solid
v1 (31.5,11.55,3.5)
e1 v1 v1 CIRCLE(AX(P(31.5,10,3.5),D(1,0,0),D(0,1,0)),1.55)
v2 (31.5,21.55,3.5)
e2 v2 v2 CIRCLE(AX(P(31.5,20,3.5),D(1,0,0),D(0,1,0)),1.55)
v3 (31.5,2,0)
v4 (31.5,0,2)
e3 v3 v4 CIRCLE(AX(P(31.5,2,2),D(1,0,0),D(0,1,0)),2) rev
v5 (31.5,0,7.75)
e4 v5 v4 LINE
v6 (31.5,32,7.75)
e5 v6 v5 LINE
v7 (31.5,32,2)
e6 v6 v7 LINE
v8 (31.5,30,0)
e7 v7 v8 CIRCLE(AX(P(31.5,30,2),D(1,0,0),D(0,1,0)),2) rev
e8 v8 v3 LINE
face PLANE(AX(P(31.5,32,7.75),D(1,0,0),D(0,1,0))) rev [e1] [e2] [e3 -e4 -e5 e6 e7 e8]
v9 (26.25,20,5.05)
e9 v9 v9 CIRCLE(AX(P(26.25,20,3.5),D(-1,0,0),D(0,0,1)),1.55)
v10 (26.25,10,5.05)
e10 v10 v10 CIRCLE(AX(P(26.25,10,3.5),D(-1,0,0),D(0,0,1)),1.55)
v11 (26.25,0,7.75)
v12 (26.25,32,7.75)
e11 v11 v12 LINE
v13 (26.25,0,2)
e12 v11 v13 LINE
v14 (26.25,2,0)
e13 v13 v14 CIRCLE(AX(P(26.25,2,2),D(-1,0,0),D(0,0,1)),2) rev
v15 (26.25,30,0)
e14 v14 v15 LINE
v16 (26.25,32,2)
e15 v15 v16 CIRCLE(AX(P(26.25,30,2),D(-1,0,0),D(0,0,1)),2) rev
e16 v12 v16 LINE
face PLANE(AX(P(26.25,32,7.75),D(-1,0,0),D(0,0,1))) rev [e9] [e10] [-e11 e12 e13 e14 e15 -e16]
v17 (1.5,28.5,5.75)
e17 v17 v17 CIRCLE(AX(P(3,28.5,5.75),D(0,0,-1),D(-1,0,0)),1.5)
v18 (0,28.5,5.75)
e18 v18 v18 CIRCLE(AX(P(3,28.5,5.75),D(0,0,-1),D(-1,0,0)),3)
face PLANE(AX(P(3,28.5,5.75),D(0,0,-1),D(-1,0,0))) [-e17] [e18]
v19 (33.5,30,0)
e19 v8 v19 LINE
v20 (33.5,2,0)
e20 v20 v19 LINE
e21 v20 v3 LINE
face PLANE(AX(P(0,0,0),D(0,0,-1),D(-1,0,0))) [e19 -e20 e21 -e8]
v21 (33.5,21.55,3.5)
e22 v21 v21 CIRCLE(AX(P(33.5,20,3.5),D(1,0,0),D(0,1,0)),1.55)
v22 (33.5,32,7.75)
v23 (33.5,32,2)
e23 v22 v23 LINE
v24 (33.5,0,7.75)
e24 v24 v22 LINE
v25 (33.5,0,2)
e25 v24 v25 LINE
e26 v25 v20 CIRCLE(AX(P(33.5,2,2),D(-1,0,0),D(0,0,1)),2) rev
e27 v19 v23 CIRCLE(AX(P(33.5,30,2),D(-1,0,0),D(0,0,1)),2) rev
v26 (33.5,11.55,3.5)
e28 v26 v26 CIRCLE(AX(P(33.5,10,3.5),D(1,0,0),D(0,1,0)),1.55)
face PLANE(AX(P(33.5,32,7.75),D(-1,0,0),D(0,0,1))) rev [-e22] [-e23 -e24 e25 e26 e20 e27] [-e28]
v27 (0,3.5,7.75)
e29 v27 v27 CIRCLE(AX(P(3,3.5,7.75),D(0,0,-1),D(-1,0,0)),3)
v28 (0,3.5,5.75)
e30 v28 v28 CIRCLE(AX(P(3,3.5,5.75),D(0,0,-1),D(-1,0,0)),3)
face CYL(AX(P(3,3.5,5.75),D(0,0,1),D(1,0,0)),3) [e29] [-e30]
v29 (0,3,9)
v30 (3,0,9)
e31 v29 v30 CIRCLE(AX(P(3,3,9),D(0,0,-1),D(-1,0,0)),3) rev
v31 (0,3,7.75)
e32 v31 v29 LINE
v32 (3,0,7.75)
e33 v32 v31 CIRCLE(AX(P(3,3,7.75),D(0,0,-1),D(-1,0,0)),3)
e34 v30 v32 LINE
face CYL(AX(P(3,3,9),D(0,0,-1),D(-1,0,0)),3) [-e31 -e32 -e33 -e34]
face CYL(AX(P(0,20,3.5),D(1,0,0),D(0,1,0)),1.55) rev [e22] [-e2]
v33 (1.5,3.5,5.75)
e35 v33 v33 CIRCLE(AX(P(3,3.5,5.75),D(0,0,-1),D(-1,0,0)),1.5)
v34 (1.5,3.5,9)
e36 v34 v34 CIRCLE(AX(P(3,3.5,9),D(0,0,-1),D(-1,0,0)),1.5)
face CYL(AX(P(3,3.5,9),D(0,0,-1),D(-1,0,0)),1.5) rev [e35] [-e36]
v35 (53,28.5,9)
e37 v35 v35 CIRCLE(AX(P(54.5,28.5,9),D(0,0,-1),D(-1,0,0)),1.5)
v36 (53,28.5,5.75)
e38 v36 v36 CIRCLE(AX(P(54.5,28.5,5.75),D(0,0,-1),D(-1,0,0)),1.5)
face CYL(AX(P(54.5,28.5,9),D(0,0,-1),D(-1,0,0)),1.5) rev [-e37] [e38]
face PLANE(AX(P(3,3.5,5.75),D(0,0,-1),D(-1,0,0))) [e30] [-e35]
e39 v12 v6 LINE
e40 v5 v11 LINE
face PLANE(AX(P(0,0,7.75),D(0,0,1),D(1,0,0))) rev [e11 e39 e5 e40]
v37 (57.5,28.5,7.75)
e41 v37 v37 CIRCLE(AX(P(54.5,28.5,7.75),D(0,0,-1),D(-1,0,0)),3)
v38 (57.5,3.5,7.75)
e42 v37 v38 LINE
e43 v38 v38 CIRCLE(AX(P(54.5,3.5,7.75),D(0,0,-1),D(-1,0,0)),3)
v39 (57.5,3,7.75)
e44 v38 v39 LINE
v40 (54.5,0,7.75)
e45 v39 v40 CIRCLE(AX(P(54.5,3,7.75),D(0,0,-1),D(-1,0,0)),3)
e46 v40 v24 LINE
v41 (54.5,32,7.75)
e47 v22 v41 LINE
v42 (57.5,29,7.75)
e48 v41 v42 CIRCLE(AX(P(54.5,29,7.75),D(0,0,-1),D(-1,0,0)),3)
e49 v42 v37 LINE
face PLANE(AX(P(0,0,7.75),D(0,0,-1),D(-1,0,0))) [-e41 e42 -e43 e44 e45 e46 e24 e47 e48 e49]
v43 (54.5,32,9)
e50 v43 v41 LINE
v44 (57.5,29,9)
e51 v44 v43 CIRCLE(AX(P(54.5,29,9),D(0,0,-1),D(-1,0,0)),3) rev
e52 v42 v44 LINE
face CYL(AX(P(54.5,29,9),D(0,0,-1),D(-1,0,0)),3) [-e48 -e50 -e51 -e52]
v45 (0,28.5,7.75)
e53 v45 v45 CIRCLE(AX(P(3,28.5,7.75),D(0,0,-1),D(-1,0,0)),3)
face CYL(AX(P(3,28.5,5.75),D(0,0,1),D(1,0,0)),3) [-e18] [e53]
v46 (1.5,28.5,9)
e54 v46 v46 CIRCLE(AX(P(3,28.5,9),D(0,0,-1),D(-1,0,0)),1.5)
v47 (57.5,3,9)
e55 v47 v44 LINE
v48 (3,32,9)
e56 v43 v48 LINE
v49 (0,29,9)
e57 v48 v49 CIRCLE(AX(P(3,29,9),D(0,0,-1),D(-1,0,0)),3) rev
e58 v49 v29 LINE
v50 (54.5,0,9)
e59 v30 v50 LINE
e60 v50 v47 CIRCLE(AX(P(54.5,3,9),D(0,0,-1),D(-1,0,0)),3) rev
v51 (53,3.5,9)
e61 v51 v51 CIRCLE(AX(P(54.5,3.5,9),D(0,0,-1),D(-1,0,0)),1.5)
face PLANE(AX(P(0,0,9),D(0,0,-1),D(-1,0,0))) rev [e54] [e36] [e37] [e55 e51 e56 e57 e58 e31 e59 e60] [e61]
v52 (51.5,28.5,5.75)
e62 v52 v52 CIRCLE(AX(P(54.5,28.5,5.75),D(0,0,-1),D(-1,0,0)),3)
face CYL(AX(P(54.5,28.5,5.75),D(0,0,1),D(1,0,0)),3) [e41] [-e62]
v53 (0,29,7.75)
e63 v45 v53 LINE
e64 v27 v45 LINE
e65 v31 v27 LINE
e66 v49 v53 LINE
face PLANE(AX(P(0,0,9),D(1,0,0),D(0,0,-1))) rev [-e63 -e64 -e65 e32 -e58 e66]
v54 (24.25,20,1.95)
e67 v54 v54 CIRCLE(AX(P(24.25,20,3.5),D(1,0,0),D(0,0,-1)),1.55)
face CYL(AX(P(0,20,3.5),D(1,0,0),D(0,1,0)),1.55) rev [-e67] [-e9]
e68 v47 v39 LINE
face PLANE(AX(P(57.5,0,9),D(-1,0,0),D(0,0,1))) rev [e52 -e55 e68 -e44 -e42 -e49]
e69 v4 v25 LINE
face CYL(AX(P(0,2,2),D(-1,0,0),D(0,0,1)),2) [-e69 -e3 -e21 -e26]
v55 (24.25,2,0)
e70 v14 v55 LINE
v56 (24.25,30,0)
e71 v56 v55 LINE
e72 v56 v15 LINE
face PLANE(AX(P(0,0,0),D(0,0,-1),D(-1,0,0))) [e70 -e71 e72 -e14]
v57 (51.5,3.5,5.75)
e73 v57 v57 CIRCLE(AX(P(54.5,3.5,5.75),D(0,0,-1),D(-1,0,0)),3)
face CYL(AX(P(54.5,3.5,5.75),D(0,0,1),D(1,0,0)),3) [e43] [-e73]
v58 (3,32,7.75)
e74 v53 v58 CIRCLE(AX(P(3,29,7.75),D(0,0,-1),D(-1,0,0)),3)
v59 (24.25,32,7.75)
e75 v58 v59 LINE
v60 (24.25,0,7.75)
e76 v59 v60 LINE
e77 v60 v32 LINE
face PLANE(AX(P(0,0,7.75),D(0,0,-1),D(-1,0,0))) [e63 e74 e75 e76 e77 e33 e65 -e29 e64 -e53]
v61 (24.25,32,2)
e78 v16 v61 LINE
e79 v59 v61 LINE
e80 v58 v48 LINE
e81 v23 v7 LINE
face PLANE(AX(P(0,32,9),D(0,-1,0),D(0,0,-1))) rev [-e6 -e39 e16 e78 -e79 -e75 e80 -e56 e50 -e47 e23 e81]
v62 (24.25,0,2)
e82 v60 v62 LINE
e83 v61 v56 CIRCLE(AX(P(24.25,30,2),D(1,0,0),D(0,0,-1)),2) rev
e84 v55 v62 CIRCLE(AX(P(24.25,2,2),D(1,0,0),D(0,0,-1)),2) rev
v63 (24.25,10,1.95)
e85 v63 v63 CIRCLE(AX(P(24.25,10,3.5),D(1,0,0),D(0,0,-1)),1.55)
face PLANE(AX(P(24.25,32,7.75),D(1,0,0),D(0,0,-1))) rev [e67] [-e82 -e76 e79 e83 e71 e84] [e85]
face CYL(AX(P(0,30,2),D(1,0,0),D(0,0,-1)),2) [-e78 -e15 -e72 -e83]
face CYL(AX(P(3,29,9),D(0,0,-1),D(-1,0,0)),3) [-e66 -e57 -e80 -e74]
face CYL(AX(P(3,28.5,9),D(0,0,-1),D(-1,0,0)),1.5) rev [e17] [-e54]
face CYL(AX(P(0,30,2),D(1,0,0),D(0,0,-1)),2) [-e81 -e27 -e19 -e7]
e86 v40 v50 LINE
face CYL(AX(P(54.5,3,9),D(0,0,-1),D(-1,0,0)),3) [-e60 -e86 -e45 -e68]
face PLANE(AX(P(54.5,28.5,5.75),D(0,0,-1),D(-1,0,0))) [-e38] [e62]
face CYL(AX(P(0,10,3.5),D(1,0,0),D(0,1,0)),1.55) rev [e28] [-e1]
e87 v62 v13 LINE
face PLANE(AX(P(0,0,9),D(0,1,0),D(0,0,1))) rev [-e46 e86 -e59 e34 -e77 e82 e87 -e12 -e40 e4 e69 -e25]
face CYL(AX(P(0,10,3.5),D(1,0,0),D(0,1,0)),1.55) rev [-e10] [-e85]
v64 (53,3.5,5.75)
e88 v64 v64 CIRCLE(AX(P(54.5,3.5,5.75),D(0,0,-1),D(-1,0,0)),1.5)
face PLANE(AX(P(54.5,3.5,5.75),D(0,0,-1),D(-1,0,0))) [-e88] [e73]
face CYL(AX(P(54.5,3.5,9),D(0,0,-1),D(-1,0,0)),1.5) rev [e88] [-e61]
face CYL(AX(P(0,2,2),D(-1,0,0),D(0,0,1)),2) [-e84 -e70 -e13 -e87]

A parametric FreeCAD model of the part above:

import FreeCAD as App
import Part
import Sketcher


def edges_at(feature, points):
    """Names of the edges that pass closest to the given points."""
    edges = feature.Shape.Edges
    near = lambda p: min(range(len(edges)), key=lambda i: edges[i].distToShape(Part.Vertex(*p))[0])
    return sorted({f"Edge{near(p) + 1}" for p in points})


def add_polygon(sketch, points):
    """Adds a closed chain of lines whose ends are joined by coincident constraints."""
    first, n = sketch.GeometryCount, len(points)
    for a, b in zip(points, points[1:] + points[:1]):
        sketch.addGeometry(Part.LineSegment(App.Vector(*a, 0), App.Vector(*b, 0)), False)
    for i in range(n):
        sketch.addConstraint(Sketcher.Constraint("Coincident", first + i, 2, first + (i + 1) % n, 1))

doc = App.newDocument("Part")
body = doc.addObject("PartDesign::Body", "Body")

# Sketch on XY plane
sketch1 = body.newObject("Sketcher::SketchObject", "Sketch")
sketch1.AttachmentSupport = (doc.getObject("XY_Plane"), [""])
sketch1.MapMode = "FlatFace"
add_polygon(sketch1, [(0, 32), (0, 0), (58, 0), (58, 32)])  # lines 0-3
sketch1.addConstraint(Sketcher.Constraint("Vertical", 0))
sketch1.addConstraint(Sketcher.Constraint("Horizontal", 1))
sketch1.addConstraint(Sketcher.Constraint("Vertical", 2))
sketch1.addConstraint(Sketcher.Constraint("Horizontal", 3))
sketch1.addConstraint(Sketcher.Constraint("Coincident", 0, 2, -1, 1))
sketch1.addConstraint(Sketcher.Constraint("DistanceY", 0, 2, 0, 1, 32.0))
sketch1.addConstraint(Sketcher.Constraint("DistanceX", 1, 1, 1, 2, 57.5))
pad1 = body.newObject("PartDesign::Pad", "Pad")
pad1.Profile = sketch1
pad1.Length = 9

# Sketch on XY plane
sketch2 = body.newObject("Sketcher::SketchObject", "Sketch001")
sketch2.AttachmentSupport = (doc.getObject("XY_Plane"), [""])
sketch2.MapMode = "FlatFace"
add_polygon(sketch2, [(24, 32), (24, 0), (0, 0), (0, 32)])  # lines 0-3
add_polygon(sketch2, [(58, 32), (58, 0), (34, 0), (34, 32)])  # lines 4-7
add_polygon(sketch2, [(32, 32), (32, 0), (26, 0), (26, 32)])  # lines 8-11
sketch2.addConstraint(Sketcher.Constraint("Vertical", 0))
sketch2.addConstraint(Sketcher.Constraint("Horizontal", 1))
sketch2.addConstraint(Sketcher.Constraint("Vertical", 2))
sketch2.addConstraint(Sketcher.Constraint("Horizontal", 3))
sketch2.addConstraint(Sketcher.Constraint("Vertical", 4))
sketch2.addConstraint(Sketcher.Constraint("Horizontal", 5))
sketch2.addConstraint(Sketcher.Constraint("Vertical", 6))
sketch2.addConstraint(Sketcher.Constraint("Horizontal", 7))
sketch2.addConstraint(Sketcher.Constraint("Vertical", 8))
sketch2.addConstraint(Sketcher.Constraint("Horizontal", 9))
sketch2.addConstraint(Sketcher.Constraint("Vertical", 10))
sketch2.addConstraint(Sketcher.Constraint("Horizontal", 11))
sketch2.addConstraint(Sketcher.Constraint("Coincident", 1, 2, -1, 1))
sketch2.addConstraint(Sketcher.Constraint("PointOnObject", 4, 2, -1))
sketch2.addConstraint(Sketcher.Constraint("PointOnObject", 8, 2, -1))
sketch2.addConstraint(Sketcher.Constraint("Horizontal", 3, 2, 6, 2))
sketch2.addConstraint(Sketcher.Constraint("Horizontal", 7, 2, 10, 2))
sketch2.addConstraint(Sketcher.Constraint("DistanceX", 5, 2, 5, 1, 24.0))
sketch2.addConstraint(Sketcher.Constraint("DistanceY", 0, 2, 0, 1, 32.0))
sketch2.addConstraint(Sketcher.Constraint("DistanceX", 8, 2, 5, 2, 2.0))
sketch2.addConstraint(Sketcher.Constraint("DistanceX", 0, 2, 9, 2, 2.0))
sketch2.addConstraint(Sketcher.Constraint("DistanceX", 1, 2, 1, 1, 24.25))
sketch2.addConstraint(Sketcher.Constraint("DistanceX", 9, 2, 9, 1, 5.25))
pocket1 = body.newObject("PartDesign::Pocket", "Pocket")
pocket1.Profile = sketch2
pocket1.Length = 7.75
pocket1.Reversed = True

# Sketch on YZ plane
sketch3 = body.newObject("Sketcher::SketchObject", "Sketch002")
sketch3.AttachmentSupport = (doc.getObject("YZ_Plane"), [""])
sketch3.MapMode = "FlatFace"
sketch3.AttachmentOffset = App.Placement(App.Vector(0, 0, 33.5), App.Rotation())
sketch3.addGeometry(Part.Circle(App.Vector(10, 3.5, 0), App.Vector(0, 0, 1), 1.6), False)
sketch3.addGeometry(Part.Circle(App.Vector(20, 3.5, 0), App.Vector(0, 0, 1), 1.6), False)
sketch3.addConstraint(Sketcher.Constraint("Equal", 0, 1))
sketch3.addConstraint(Sketcher.Constraint("Horizontal", 0, 3, 1, 3))
sketch3.addConstraint(Sketcher.Constraint("Diameter", 0, 3.1))
sketch3.addConstraint(Sketcher.Constraint("DistanceX", -1, 1, 0, 3, 10.0))
sketch3.addConstraint(Sketcher.Constraint("DistanceX", -1, 1, 1, 3, 20.0))
sketch3.addConstraint(Sketcher.Constraint("DistanceY", -1, 1, 0, 3, 3.5))
pocket2 = body.newObject("PartDesign::Pocket", "Pocket001")
pocket2.Profile = sketch3
pocket2.Type = "ThroughAll"
doc.recompute()

fillet = body.newObject("PartDesign::Fillet", "Fillet")
fillet.Base = (pocket2, edges_at(pocket2, [
    (0, 32, 8.375),
    (57.5, 32, 8.375),
    (57.5, 0, 8.375),
    (0, 0, 8.375),
]))
fillet.Radius = 3
doc.recompute()

fillet2 = body.newObject("PartDesign::Fillet", "Fillet001")
fillet2.Base = (fillet, edges_at(fillet, [
    (32.5, 32, 0),
    (25.25, 32, 0),
    (25.25, 0, 0),
    (32.5, 0, 0),
]))
fillet2.Radius = 2

# Sketch on XY plane
sketch4 = body.newObject("Sketcher::SketchObject", "Sketch003")
sketch4.AttachmentSupport = (doc.getObject("XY_Plane"), [""])
sketch4.MapMode = "FlatFace"
sketch4.AttachmentOffset = App.Placement(App.Vector(0, 0, 7.75), App.Rotation())
sketch4.addGeometry(Part.Circle(App.Vector(54.5, 28.5, 0), App.Vector(0, 0, 1), 3), False)
sketch4.addGeometry(Part.Circle(App.Vector(54.5, 3.5, 0), App.Vector(0, 0, 1), 3), False)
sketch4.addGeometry(Part.Circle(App.Vector(3, 3.5, 0), App.Vector(0, 0, 1), 3), False)
sketch4.addGeometry(Part.Circle(App.Vector(3, 28.5, 0), App.Vector(0, 0, 1), 3), False)
sketch4.addConstraint(Sketcher.Constraint("Equal", 0, 1))
sketch4.addConstraint(Sketcher.Constraint("Equal", 1, 2))
sketch4.addConstraint(Sketcher.Constraint("Equal", 2, 3))
sketch4.addConstraint(Sketcher.Constraint("Horizontal", 1, 3, 2, 3))
sketch4.addConstraint(Sketcher.Constraint("Horizontal", 0, 3, 3, 3))
sketch4.addConstraint(Sketcher.Constraint("Vertical", 0, 3, 1, 3))
sketch4.addConstraint(Sketcher.Constraint("Vertical", 2, 3, 3, 3))
sketch4.addConstraint(Sketcher.Constraint("Diameter", 0, 6.0))
sketch4.addConstraint(Sketcher.Constraint("DistanceX", -1, 1, 2, 3, 3.0))
sketch4.addConstraint(Sketcher.Constraint("DistanceY", 1, 3, 0, 3, 25.0))
sketch4.addConstraint(Sketcher.Constraint("DistanceX", -1, 1, 0, 3, 54.5))
sketch4.addConstraint(Sketcher.Constraint("DistanceY", -1, 1, 0, 3, 28.5))
pad2 = body.newObject("PartDesign::Pad", "Pad001")
pad2.Profile = sketch4
pad2.Length = 2
pad2.Reversed = True

# Sketch on XY plane
sketch5 = body.newObject("Sketcher::SketchObject", "Sketch004")
sketch5.AttachmentSupport = (doc.getObject("XY_Plane"), [""])
sketch5.MapMode = "FlatFace"
sketch5.AttachmentOffset = App.Placement(App.Vector(0, 0, 7.75), App.Rotation())
sketch5.addGeometry(Part.Circle(App.Vector(54.5, 28.5, 0), App.Vector(0, 0, 1), 1.5), False)
sketch5.addGeometry(Part.Circle(App.Vector(3, 28.5, 0), App.Vector(0, 0, 1), 1.5), False)
sketch5.addGeometry(Part.Circle(App.Vector(3, 3.5, 0), App.Vector(0, 0, 1), 1.5), False)
sketch5.addGeometry(Part.Circle(App.Vector(54.5, 3.5, 0), App.Vector(0, 0, 1), 1.5), False)
sketch5.addConstraint(Sketcher.Constraint("Equal", 0, 1))
sketch5.addConstraint(Sketcher.Constraint("Equal", 1, 2))
sketch5.addConstraint(Sketcher.Constraint("Equal", 2, 3))
sketch5.addConstraint(Sketcher.Constraint("Horizontal", 0, 3, 1, 3))
sketch5.addConstraint(Sketcher.Constraint("Horizontal", 2, 3, 3, 3))
sketch5.addConstraint(Sketcher.Constraint("Vertical", 1, 3, 2, 3))
sketch5.addConstraint(Sketcher.Constraint("Vertical", 0, 3, 3, 3))
sketch5.addConstraint(Sketcher.Constraint("Diameter", 0, 3.0))
sketch5.addConstraint(Sketcher.Constraint("DistanceX", -1, 1, 1, 3, 3.0))
sketch5.addConstraint(Sketcher.Constraint("DistanceY", 2, 3, 1, 3, 25.0))
sketch5.addConstraint(Sketcher.Constraint("DistanceX", -1, 1, 0, 3, 54.5))
sketch5.addConstraint(Sketcher.Constraint("DistanceY", -1, 1, 0, 3, 28.5))
pocket3 = body.newObject("PartDesign::Pocket", "Pocket002")
pocket3.Profile = sketch5
pocket3.Type = "ThroughAll"
pocket3.Midplane = True

doc.recompute()
